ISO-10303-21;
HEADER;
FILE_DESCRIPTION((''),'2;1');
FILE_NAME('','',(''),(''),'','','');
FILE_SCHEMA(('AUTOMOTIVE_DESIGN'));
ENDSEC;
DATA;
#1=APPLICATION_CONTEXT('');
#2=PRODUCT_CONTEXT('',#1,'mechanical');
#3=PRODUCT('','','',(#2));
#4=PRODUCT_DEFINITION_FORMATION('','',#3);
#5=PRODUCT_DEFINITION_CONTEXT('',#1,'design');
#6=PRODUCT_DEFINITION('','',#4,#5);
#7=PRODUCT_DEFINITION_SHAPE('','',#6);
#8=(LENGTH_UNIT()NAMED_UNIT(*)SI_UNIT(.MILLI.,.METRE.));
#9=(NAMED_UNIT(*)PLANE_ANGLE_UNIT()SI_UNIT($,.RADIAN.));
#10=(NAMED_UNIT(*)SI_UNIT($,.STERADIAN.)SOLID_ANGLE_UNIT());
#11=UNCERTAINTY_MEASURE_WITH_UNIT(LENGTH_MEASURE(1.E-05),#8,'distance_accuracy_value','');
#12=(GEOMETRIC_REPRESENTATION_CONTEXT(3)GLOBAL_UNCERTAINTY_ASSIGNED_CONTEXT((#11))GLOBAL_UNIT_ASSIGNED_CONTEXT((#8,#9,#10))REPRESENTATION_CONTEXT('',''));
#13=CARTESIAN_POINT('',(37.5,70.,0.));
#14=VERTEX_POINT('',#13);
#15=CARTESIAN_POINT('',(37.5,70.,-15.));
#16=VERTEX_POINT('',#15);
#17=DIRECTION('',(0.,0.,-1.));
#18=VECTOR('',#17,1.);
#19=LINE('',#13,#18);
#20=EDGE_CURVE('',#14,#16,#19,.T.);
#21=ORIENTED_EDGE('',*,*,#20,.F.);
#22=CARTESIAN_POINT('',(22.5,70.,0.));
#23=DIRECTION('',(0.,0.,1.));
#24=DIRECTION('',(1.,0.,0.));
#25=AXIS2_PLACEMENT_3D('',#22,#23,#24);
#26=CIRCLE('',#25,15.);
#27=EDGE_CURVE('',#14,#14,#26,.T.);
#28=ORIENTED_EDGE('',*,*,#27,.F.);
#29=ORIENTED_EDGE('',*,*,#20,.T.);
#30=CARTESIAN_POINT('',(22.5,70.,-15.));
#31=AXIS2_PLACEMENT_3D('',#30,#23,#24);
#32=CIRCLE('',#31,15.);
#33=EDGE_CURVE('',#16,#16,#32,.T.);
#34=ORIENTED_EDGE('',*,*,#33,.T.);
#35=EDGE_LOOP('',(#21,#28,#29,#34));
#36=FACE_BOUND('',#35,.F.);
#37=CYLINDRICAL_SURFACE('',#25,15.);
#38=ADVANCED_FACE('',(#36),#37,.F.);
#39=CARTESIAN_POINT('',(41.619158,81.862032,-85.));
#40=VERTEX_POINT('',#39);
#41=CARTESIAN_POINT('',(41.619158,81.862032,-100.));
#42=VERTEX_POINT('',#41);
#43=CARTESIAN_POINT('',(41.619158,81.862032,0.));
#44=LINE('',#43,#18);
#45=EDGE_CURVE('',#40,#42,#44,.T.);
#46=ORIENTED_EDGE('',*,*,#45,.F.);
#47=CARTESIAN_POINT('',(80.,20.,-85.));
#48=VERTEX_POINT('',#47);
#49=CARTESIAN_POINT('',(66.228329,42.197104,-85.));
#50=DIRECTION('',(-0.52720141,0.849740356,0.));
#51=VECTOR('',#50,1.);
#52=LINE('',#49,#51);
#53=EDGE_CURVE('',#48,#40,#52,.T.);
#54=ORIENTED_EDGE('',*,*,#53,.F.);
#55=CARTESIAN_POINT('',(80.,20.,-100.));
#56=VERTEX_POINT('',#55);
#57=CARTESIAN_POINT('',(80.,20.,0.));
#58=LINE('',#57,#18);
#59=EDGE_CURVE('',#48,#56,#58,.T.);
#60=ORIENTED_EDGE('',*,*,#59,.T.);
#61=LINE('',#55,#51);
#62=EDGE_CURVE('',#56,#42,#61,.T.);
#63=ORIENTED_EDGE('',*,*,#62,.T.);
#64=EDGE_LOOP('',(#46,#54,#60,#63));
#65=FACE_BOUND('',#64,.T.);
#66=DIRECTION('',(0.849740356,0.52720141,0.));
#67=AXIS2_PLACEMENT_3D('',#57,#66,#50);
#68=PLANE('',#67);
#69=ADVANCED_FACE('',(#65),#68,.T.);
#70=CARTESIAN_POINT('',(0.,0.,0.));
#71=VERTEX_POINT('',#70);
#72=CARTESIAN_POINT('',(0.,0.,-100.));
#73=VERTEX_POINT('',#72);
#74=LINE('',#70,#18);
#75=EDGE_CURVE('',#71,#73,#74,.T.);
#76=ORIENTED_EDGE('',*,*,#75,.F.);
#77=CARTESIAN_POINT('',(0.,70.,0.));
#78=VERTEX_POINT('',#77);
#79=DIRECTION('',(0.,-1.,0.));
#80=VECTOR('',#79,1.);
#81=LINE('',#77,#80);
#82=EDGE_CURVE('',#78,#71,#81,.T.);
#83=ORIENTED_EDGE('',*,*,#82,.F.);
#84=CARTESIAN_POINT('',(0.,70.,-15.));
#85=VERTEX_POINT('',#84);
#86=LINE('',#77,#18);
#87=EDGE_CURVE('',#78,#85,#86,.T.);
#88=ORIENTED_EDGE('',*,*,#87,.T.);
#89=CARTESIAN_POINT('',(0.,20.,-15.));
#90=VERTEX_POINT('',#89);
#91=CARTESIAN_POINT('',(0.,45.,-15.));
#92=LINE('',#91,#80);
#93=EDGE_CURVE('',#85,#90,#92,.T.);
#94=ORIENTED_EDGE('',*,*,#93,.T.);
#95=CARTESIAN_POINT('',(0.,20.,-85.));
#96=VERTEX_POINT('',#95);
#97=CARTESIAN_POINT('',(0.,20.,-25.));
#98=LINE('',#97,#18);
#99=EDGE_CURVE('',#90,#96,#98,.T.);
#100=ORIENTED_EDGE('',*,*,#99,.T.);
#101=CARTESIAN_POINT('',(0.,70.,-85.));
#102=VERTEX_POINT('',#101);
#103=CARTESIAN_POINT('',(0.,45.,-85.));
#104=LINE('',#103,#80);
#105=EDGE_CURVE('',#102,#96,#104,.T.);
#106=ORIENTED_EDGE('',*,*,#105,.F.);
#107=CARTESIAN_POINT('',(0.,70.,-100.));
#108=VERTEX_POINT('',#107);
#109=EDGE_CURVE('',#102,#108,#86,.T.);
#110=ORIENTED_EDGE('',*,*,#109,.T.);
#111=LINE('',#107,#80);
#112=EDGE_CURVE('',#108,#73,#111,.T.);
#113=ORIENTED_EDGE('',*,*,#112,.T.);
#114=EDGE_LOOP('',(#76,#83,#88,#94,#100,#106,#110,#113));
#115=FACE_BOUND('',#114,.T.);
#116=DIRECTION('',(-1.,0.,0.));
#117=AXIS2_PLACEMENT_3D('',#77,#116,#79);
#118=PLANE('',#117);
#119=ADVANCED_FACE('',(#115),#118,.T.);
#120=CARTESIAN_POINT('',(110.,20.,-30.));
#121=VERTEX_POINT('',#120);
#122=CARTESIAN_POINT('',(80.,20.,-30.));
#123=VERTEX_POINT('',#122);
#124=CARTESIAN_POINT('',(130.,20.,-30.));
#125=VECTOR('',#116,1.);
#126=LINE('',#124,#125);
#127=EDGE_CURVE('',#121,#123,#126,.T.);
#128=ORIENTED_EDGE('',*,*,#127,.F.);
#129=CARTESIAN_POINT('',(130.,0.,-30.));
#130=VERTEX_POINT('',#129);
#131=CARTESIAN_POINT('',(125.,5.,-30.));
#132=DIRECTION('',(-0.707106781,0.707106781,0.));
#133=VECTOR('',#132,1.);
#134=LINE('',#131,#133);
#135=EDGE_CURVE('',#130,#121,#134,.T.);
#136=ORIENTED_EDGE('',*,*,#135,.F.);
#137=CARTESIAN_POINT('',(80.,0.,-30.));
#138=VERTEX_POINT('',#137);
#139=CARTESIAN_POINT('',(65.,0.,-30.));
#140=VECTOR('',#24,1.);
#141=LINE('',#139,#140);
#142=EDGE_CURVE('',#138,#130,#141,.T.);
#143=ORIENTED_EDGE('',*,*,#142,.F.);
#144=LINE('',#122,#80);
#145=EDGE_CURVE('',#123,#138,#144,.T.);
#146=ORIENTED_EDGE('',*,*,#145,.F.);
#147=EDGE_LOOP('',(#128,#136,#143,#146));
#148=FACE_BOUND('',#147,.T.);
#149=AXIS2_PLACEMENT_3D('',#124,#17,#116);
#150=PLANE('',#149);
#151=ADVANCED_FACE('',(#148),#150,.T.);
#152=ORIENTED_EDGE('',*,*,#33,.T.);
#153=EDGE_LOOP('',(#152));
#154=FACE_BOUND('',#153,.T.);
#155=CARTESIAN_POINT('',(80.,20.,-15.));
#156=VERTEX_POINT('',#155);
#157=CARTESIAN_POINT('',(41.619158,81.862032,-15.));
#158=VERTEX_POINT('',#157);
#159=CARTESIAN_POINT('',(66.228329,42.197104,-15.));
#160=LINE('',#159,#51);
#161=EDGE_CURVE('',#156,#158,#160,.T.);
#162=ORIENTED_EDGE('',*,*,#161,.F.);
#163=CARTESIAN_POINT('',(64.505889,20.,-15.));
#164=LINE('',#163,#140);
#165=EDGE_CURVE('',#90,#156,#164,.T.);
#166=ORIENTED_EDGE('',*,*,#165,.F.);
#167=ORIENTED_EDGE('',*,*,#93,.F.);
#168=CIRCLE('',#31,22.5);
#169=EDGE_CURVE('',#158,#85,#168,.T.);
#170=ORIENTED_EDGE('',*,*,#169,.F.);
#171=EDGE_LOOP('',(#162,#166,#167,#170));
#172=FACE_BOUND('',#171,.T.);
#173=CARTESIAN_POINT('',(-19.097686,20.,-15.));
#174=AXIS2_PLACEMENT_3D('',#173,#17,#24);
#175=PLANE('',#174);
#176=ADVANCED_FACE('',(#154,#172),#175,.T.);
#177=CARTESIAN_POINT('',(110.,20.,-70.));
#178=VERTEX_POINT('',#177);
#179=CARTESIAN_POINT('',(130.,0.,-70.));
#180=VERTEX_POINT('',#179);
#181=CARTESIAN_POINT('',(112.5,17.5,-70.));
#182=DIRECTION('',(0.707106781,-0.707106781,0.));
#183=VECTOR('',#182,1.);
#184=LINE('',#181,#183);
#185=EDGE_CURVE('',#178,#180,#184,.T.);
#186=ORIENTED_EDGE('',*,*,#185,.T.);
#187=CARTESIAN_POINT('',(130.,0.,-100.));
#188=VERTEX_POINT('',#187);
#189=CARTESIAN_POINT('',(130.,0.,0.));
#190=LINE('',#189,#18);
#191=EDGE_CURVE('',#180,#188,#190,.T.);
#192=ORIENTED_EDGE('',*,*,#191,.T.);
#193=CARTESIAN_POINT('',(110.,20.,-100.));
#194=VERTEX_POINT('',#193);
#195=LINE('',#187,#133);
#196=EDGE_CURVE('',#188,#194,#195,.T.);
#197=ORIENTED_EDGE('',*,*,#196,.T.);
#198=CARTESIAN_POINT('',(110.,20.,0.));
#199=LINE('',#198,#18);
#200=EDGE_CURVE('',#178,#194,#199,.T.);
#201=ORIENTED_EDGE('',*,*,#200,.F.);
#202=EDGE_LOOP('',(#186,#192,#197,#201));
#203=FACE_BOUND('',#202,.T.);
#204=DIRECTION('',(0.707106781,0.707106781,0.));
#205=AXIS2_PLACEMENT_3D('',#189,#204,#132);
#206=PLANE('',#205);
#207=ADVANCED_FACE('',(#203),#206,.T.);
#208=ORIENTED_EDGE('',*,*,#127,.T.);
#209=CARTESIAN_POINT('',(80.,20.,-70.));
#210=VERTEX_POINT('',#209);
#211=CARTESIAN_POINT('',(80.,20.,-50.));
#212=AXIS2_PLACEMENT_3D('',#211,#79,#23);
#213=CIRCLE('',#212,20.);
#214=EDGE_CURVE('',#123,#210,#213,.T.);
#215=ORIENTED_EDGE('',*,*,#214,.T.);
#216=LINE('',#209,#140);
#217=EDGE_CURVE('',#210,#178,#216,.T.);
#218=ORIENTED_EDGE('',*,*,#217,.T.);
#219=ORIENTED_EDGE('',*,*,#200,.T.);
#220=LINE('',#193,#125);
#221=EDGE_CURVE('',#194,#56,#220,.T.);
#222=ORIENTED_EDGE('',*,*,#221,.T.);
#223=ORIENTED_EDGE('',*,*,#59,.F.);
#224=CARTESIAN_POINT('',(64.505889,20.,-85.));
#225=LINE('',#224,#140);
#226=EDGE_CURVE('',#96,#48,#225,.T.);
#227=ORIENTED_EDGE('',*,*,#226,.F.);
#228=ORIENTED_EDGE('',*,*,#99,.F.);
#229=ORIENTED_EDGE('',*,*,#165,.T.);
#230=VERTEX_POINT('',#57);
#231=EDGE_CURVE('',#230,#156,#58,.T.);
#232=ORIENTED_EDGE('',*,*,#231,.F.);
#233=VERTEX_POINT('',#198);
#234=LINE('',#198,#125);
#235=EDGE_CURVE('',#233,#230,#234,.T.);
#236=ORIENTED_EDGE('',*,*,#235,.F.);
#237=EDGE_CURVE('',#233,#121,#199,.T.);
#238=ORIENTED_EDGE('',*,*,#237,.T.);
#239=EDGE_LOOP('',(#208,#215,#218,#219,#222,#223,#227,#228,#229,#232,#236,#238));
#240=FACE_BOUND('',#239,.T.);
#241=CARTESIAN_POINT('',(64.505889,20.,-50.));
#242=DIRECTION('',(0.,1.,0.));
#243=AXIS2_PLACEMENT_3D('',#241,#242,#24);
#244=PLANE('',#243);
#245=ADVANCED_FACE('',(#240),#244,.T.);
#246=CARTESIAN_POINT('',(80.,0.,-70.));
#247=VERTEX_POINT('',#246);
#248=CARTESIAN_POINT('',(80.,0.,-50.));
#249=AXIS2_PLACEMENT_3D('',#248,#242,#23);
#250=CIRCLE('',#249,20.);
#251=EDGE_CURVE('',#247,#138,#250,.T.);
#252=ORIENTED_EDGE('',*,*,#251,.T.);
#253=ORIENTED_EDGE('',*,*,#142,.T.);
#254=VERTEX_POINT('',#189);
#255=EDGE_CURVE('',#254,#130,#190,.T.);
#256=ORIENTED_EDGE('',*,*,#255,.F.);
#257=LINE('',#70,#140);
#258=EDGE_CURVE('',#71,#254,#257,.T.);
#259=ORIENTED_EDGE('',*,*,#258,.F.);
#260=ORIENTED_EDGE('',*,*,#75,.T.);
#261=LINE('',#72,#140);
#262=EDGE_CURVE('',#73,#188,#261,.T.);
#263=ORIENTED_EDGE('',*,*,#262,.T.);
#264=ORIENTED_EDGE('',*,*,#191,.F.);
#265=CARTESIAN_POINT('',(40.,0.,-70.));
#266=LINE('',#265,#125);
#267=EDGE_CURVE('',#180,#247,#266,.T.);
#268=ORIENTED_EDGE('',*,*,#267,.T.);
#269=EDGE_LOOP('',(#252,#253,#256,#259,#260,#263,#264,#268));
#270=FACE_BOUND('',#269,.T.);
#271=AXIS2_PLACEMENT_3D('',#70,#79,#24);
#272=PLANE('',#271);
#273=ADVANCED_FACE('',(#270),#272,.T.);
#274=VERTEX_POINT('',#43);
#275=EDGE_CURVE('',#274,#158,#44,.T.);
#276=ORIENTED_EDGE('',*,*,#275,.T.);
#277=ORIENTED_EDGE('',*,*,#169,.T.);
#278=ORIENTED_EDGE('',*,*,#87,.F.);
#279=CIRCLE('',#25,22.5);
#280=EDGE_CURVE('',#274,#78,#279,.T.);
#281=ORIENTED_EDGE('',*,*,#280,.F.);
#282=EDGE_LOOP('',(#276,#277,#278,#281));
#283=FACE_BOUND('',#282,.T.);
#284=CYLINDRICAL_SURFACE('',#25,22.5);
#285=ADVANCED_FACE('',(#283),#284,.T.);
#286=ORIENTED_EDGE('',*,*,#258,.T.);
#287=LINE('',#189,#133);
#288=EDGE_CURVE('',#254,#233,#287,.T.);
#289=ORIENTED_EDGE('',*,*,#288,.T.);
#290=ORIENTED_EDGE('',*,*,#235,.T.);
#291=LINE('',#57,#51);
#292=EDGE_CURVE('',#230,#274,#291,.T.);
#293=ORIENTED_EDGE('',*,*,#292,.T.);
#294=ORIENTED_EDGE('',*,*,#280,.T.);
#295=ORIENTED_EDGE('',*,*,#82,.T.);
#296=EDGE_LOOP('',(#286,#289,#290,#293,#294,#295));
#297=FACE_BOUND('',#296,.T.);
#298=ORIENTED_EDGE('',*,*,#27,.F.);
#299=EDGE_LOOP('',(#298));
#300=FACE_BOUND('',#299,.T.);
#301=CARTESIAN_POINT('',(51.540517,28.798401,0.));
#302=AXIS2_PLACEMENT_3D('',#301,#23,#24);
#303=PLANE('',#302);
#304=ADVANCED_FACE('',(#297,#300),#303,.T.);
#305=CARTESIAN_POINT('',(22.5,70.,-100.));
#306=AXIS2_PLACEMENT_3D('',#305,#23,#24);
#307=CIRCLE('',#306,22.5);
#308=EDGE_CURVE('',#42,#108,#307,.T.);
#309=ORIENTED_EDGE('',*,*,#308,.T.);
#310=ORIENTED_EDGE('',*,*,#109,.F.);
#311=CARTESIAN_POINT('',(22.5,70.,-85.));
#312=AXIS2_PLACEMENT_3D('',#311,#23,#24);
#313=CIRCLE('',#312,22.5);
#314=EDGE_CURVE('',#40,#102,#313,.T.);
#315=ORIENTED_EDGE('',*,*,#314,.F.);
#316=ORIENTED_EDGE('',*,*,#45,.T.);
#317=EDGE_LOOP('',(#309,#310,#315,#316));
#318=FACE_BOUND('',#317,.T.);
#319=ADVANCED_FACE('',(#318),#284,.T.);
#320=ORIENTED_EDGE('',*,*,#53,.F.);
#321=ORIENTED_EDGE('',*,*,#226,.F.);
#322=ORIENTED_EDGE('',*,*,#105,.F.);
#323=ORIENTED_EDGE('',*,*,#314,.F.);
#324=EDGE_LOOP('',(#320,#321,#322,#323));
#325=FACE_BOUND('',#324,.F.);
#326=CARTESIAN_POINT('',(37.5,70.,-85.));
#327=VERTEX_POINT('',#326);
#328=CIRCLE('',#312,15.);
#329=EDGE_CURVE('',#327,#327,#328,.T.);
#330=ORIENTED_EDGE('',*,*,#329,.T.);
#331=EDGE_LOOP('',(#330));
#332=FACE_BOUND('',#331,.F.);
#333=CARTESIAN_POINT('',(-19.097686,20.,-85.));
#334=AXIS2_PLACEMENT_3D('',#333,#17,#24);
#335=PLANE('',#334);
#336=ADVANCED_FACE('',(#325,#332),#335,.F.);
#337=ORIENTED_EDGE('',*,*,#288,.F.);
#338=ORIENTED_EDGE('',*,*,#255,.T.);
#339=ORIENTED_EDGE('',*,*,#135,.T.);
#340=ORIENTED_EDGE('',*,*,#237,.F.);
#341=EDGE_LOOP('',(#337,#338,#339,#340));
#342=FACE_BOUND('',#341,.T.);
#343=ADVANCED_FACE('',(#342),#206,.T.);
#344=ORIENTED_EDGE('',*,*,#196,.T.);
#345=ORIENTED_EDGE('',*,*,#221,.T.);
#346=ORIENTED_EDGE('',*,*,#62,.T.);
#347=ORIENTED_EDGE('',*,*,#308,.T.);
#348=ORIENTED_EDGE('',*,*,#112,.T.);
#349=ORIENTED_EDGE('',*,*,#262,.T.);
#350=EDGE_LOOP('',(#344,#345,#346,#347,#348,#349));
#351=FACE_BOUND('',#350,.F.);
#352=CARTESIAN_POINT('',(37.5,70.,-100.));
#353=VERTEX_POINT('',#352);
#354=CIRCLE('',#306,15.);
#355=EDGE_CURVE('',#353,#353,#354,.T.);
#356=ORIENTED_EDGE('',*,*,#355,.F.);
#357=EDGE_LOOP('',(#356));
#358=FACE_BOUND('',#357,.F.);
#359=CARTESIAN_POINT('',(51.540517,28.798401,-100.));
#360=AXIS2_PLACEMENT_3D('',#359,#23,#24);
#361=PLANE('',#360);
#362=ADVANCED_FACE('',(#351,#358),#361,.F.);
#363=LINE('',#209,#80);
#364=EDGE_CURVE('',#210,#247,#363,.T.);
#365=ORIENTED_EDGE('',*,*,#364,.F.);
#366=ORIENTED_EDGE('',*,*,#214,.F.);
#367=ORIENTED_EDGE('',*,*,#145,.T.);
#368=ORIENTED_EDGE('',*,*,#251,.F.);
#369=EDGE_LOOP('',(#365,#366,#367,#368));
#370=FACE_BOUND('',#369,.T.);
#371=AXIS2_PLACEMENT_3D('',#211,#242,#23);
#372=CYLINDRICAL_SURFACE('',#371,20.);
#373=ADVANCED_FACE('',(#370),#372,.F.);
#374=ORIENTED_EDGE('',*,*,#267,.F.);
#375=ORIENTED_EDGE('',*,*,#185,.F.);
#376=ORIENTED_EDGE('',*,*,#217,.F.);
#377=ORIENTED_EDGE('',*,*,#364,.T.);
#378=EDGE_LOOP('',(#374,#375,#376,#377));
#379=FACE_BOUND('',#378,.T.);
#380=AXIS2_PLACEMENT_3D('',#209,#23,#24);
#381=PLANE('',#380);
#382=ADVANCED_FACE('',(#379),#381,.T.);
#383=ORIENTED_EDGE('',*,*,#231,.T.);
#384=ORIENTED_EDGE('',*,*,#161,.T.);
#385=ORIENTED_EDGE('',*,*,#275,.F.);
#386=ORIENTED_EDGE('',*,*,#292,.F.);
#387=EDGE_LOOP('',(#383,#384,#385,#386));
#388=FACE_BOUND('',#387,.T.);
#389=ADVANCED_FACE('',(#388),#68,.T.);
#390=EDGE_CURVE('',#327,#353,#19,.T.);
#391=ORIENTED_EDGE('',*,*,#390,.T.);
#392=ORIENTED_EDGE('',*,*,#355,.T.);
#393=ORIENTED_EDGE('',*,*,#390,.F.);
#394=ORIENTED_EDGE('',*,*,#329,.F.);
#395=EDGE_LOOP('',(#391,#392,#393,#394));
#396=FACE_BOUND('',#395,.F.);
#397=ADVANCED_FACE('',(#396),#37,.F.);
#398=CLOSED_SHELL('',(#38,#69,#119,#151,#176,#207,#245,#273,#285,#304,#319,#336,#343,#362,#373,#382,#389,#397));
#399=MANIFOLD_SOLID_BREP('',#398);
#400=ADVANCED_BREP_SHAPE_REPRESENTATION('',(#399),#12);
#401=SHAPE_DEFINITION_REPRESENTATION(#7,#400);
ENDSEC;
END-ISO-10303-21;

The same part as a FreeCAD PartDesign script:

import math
import FreeCAD as App
import Part
import Sketcher
from FreeCAD import Vector
Q = App.Units.Quantity

doc = App.newDocument("Part")
body = doc.addObject("PartDesign::Body", "Body")

# Sketch on XY plane
sketch1 = body.newObject("Sketcher::SketchObject", "Sketch")
sketch1.AttachmentSupport = (doc.getObject("XY_Plane"), [""])
sketch1.MapMode = "FlatFace"
sketch1.addGeometry(Part.LineSegment(Vector(0, 70, 0), Vector(0, 0, 0)), False)
sketch1.addGeometry(Part.LineSegment(Vector(0, 0, 0), Vector(130, 0, 0)), False)
sketch1.addGeometry(Part.LineSegment(Vector(130, 0, 0), Vector(110, 20, 0)), False)
sketch1.addGeometry(Part.LineSegment(Vector(110, 20, 0), Vector(80, 20, 0)), False)
sketch1.addGeometry(Part.LineSegment(Vector(80, 20, 0), Vector(41.619158, 81.862032, 0)), False)
sketch1.addGeometry(Part.ArcOfCircle(Part.Circle(Vector(22.5, 70, 0), Vector(0, 0, 1), 22.5), math.radians(31.81656), math.radians(180)), False)
sketch1.addGeometry(Part.Circle(Vector(22.5, 70, 0), Vector(0, 0, 1), 15), False)
sketch1.addConstraint(Sketcher.Constraint("Coincident", 0, 2, 1, 1))
sketch1.addConstraint(Sketcher.Constraint("Coincident", 1, 2, 2, 1))
sketch1.addConstraint(Sketcher.Constraint("Coincident", 2, 2, 3, 1))
sketch1.addConstraint(Sketcher.Constraint("Coincident", 3, 2, 4, 1))
sketch1.addConstraint(Sketcher.Constraint("Tangent", 4, 2, 5, 1))
sketch1.addConstraint(Sketcher.Constraint("Tangent", 5, 2, 0, 1))
sketch1.addConstraint(Sketcher.Constraint("Vertical", 0))
sketch1.addConstraint(Sketcher.Constraint("Horizontal", 1))
sketch1.addConstraint(Sketcher.Constraint("Horizontal", 3))
sketch1.addConstraint(Sketcher.Constraint("Coincident", 0, 2, -1, 1))
sketch1.addConstraint(Sketcher.Constraint("Coincident", 6, 3, 5, 3))
sketch1.addConstraint(Sketcher.Constraint("Diameter", 6, Q("30 mm")))
sketch1.addConstraint(Sketcher.Constraint("Radius", 5, Q("22.5 mm")))
sketch1.addConstraint(Sketcher.Constraint("DistanceX", 1, 1, 1, 2, Q("130 mm")))
sketch1.addConstraint(Sketcher.Constraint("DistanceX", 3, 2, 3, 1, Q("30 mm")))
sketch1.addConstraint(Sketcher.Constraint("DistanceY", 0, 2, 0, 1, Q("70 mm")))
sketch1.addConstraint(Sketcher.Constraint("Angle", 2, Q("135 deg")))
sketch1.addConstraint(Sketcher.Constraint("DistanceX", -1, 1, 2, 2, Q("110 mm")))
pad1 = body.newObject("PartDesign::Pad", "Pad")
pad1.Profile = sketch1
pad1.Length = 100
pad1.Reversed = True

# Sketch on XZ plane
sketch2 = body.newObject("Sketcher::SketchObject", "Sketch001")
sketch2.AttachmentSupport = (doc.getObject("XZ_Plane"), [""])
sketch2.MapMode = "FlatFace"
sketch2.AttachmentOffset = App.Placement(Vector(0, 0, -20), App.Rotation())
sketch2.addGeometry(Part.LineSegment(Vector(-19.097686, -85, 0), Vector(-19.097686, -15, 0)), False)
sketch2.addGeometry(Part.LineSegment(Vector(-19.097686, -15, 0), Vector(148.109464, -15, 0)), False)
sketch2.addGeometry(Part.LineSegment(Vector(148.109464, -15, 0), Vector(148.109464, -85, 0)), False)
sketch2.addGeometry(Part.LineSegment(Vector(148.109464, -85, 0), Vector(-19.097686, -85, 0)), False)
sketch2.addConstraint(Sketcher.Constraint("Coincident", 0, 2, 1, 1))
sketch2.addConstraint(Sketcher.Constraint("Coincident", 1, 2, 2, 1))
sketch2.addConstraint(Sketcher.Constraint("Coincident", 2, 2, 3, 1))
sketch2.addConstraint(Sketcher.Constraint("Coincident", 3, 2, 0, 1))
sketch2.addConstraint(Sketcher.Constraint("Vertical", 0))
sketch2.addConstraint(Sketcher.Constraint("Horizontal", 1))
sketch2.addConstraint(Sketcher.Constraint("Vertical", 2))
sketch2.addConstraint(Sketcher.Constraint("Horizontal", 3))
sketch2.addConstraint(Sketcher.Constraint("DistanceY", 0, 1, 0, 2, Q("70 mm")))
sketch2.addConstraint(Sketcher.Constraint("DistanceY", 0, 2, -1, 1, Q("15 mm")))
sketch2.addConstraint(Sketcher.Constraint("DistanceX", 1, 1, 1, 2, Q("167.20715 mm")))
sketch2.addConstraint(Sketcher.Constraint("DistanceX", 0, 2, -1, 1, Q("19.097686 mm")))
pocket1 = body.newObject("PartDesign::Pocket", "Pocket")
pocket1.Profile = sketch2
pocket1.Type = "ThroughAll"

# Sketch on XZ plane
sketch3 = body.newObject("Sketcher::SketchObject", "Sketch002")
sketch3.AttachmentSupport = (doc.getObject("XZ_Plane"), [""])
sketch3.MapMode = "FlatFace"
sketch3.AttachmentOffset = App.Placement(Vector(0, 0, -20), App.Rotation())
sketch3.addGeometry(Part.LineSegment(Vector(130, -70, 0), Vector(80, -70, 0)), False)
sketch3.addGeometry(Part.ArcOfCircle(Part.Circle(Vector(80, -50, 0), Vector(0, 0, 1), 20), math.radians(90), math.radians(270)), False)
sketch3.addGeometry(Part.LineSegment(Vector(80, -30, 0), Vector(130, -30, 0)), False)
sketch3.addGeometry(Part.LineSegment(Vector(130, -30, 0), Vector(130, -70, 0)), False)
sketch3.addConstraint(Sketcher.Constraint("Tangent", 0, 2, 1, 2))
sketch3.addConstraint(Sketcher.Constraint("Tangent", 1, 1, 2, 1))
sketch3.addConstraint(Sketcher.Constraint("Coincident", 2, 2, 3, 1))
sketch3.addConstraint(Sketcher.Constraint("Coincident", 3, 2, 0, 1))
sketch3.addConstraint(Sketcher.Constraint("Horizontal", 0))
sketch3.addConstraint(Sketcher.Constraint("Horizontal", 2))
sketch3.addConstraint(Sketcher.Constraint("Vertical", 3))
sketch3.addConstraint(Sketcher.Constraint("Radius", 1, Q("20 mm")))
sketch3.addConstraint(Sketcher.Constraint("DistanceX", 0, 2, 0, 1, Q("50 mm")))
sketch3.addConstraint(Sketcher.Constraint("DistanceX", -1, 1, 1, 3, Q("80 mm")))
sketch3.addConstraint(Sketcher.Constraint("DistanceY", 1, 3, -1, 1, Q("50 mm")))
pocket2 = body.newObject("PartDesign::Pocket", "Pocket001")
pocket2.Profile = sketch3
pocket2.Type = "ThroughAll"
pocket2.Reversed = True

doc.recompute()
